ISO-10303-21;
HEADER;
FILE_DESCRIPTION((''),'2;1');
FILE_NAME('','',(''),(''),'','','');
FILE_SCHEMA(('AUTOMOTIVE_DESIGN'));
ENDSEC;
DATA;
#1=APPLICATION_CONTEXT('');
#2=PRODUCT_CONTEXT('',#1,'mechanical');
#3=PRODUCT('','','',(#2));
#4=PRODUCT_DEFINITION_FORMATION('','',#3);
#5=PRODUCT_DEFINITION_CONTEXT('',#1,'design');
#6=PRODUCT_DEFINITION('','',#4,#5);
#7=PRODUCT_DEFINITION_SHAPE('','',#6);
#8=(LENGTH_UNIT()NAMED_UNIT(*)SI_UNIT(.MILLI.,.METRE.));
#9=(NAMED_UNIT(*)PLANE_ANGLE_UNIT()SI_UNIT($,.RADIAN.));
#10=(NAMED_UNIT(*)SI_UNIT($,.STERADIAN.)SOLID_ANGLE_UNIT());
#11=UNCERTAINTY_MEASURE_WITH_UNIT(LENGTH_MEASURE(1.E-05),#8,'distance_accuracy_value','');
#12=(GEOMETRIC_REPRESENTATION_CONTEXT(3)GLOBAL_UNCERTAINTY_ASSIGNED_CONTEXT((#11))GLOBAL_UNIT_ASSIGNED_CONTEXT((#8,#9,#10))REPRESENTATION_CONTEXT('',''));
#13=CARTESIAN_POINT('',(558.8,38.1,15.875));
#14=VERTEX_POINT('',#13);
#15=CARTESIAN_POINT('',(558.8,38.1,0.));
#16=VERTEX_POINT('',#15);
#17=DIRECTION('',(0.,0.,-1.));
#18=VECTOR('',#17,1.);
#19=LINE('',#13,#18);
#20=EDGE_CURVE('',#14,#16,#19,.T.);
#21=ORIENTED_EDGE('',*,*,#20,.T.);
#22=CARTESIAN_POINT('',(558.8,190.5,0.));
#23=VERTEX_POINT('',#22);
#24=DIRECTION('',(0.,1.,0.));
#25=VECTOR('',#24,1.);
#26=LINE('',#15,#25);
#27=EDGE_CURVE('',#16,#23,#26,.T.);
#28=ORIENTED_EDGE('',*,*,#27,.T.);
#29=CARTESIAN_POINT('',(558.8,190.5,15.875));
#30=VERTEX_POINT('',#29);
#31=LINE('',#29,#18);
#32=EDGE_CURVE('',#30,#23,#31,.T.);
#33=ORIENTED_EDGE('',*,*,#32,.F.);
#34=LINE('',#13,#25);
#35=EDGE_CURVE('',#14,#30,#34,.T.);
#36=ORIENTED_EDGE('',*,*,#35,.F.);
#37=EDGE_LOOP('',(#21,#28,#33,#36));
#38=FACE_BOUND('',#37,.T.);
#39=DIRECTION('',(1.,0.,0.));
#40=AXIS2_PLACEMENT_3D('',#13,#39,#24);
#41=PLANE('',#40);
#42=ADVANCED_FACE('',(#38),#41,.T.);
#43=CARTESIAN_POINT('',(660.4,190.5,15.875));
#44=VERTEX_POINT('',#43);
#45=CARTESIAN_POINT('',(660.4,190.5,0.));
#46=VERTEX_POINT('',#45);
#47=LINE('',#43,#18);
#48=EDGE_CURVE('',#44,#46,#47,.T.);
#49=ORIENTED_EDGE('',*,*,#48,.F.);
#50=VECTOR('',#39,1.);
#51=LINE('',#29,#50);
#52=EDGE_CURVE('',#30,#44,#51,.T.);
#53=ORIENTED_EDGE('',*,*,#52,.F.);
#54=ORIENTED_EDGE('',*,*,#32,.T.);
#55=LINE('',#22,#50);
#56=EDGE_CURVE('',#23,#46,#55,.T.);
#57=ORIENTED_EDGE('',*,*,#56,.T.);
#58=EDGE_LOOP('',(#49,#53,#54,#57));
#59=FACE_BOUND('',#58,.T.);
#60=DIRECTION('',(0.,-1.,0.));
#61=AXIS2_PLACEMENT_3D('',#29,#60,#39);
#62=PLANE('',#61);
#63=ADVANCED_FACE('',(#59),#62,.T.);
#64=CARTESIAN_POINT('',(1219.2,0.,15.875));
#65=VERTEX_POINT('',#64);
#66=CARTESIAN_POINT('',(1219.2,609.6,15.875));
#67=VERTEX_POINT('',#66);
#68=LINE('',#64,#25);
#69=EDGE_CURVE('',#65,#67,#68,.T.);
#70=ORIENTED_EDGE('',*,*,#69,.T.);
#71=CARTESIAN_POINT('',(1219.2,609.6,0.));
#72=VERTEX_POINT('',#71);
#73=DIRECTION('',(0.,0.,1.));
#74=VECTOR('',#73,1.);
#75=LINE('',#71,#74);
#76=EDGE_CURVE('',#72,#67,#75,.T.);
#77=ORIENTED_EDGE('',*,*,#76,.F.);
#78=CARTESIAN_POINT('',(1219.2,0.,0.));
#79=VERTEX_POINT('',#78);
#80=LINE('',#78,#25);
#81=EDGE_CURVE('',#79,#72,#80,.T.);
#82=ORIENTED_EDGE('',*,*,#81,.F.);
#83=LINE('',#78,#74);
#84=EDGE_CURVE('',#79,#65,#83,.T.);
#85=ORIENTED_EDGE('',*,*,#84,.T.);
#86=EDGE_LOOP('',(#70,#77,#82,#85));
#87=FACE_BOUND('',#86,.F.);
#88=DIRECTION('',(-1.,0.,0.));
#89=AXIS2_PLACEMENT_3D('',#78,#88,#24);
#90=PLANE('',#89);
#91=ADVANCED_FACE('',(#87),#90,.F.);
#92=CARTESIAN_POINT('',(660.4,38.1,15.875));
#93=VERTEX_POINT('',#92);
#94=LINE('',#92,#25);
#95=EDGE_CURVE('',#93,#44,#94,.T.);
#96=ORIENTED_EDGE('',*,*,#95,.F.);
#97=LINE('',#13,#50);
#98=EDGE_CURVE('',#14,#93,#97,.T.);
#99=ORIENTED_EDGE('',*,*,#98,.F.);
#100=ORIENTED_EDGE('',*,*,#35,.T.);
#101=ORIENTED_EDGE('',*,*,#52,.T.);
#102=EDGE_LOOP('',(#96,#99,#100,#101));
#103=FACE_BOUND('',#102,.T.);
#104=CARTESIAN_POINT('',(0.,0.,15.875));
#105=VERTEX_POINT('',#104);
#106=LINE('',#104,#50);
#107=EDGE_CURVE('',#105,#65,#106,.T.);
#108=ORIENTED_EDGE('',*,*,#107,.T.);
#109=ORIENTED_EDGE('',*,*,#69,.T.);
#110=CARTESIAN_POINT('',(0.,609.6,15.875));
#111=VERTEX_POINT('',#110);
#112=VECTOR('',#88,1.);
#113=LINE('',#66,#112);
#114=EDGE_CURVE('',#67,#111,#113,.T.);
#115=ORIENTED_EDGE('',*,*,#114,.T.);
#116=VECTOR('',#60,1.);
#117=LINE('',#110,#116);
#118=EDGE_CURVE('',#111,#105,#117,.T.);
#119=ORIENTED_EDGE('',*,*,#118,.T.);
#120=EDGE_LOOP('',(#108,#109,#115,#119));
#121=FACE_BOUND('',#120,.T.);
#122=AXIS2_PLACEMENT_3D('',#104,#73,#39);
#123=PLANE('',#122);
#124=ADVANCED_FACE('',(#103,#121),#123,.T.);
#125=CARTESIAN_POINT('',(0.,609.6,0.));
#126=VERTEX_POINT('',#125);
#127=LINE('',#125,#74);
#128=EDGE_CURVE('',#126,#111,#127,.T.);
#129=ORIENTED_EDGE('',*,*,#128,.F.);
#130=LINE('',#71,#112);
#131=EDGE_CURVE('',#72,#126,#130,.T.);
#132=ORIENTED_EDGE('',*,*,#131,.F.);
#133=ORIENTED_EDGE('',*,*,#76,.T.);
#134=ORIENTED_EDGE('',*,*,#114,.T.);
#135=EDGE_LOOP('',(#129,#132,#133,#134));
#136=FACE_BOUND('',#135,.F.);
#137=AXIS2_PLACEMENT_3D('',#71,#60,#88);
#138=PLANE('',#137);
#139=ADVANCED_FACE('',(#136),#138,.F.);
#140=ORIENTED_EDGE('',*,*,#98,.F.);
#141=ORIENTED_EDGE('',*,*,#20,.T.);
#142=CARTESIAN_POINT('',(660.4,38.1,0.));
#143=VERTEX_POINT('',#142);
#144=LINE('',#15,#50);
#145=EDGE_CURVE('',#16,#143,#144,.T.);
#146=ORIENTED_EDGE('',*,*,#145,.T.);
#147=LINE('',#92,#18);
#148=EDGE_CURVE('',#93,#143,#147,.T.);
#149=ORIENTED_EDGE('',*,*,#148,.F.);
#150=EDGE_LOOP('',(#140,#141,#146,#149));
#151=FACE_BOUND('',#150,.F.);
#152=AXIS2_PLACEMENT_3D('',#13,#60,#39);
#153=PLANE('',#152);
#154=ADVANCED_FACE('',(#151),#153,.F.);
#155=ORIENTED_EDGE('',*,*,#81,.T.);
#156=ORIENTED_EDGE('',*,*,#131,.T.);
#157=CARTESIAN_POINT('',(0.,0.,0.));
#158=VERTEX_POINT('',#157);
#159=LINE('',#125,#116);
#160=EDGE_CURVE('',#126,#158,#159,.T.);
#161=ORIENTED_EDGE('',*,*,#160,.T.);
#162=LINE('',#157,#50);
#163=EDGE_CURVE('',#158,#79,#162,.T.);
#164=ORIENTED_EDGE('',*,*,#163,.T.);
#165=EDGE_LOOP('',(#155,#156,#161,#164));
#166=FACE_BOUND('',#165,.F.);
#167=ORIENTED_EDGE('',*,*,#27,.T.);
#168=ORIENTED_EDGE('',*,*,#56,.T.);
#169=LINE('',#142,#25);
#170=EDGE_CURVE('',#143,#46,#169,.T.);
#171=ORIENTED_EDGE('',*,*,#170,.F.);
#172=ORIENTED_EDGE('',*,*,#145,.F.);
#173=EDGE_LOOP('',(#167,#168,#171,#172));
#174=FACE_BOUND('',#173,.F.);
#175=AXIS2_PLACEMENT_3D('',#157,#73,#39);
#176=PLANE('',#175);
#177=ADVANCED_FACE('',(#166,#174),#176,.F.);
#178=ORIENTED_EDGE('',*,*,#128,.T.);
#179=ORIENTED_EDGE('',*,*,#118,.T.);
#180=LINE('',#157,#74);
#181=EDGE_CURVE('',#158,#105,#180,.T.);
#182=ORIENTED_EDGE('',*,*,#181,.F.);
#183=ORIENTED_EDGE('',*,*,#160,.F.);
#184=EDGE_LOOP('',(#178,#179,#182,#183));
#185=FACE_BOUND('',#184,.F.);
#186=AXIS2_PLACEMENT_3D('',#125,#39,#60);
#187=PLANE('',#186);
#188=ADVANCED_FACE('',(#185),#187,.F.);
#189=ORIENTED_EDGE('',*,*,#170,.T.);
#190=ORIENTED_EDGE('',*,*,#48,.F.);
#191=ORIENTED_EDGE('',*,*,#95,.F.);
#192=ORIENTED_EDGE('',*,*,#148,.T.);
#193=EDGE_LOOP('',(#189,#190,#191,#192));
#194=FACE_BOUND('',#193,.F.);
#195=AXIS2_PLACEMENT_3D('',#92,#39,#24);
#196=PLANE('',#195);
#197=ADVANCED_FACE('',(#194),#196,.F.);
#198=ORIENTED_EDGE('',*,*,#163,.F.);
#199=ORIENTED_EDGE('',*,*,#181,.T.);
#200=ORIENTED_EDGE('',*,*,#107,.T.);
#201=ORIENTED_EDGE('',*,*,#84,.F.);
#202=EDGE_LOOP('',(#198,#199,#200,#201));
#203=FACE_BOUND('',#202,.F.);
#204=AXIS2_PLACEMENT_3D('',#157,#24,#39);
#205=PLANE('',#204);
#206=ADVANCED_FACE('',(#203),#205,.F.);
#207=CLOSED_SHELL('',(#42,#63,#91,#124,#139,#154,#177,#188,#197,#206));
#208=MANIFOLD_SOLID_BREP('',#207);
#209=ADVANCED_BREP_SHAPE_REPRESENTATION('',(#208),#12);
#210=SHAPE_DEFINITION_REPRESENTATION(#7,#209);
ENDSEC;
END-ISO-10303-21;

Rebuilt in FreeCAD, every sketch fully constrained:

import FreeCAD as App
import Part
import Sketcher
Q = App.Units.Quantity

doc = App.newDocument("Part")
body = doc.addObject("PartDesign::Body", "Body")

# Sketch on XY plane
sketch1 = body.newObject("Sketcher::SketchObject", "Sketch")
sketch1.AttachmentSupport = (doc.getObject("XY_Plane"), [""])
sketch1.MapMode = "FlatFace"
sketch1.addGeometry(Part.LineSegment(App.Vector(0, 609.6, 0), App.Vector(0, 0, 0)), False)
sketch1.addGeometry(Part.LineSegment(App.Vector(0, 0, 0), App.Vector(1219.2, 0, 0)), False)
sketch1.addGeometry(Part.LineSegment(App.Vector(1219.2, 0, 0), App.Vector(1219.2, 609.6, 0)), False)
sketch1.addGeometry(Part.LineSegment(App.Vector(1219.2, 609.6, 0), App.Vector(0, 609.6, 0)), False)
sketch1.addConstraint(Sketcher.Constraint("Coincident", 0, 2, 1, 1))
sketch1.addConstraint(Sketcher.Constraint("Coincident", 1, 2, 2, 1))
sketch1.addConstraint(Sketcher.Constraint("Coincident", 2, 2, 3, 1))
sketch1.addConstraint(Sketcher.Constraint("Coincident", 3, 2, 0, 1))
sketch1.addConstraint(Sketcher.Constraint("Vertical", 0))
sketch1.addConstraint(Sketcher.Constraint("Horizontal", 1))
sketch1.addConstraint(Sketcher.Constraint("Vertical", 2))
sketch1.addConstraint(Sketcher.Constraint("Horizontal", 3))
sketch1.addConstraint(Sketcher.Constraint("Coincident", 0, 2, -1, 1))
sketch1.addConstraint(Sketcher.Constraint("DistanceX", 1, 1, 1, 2, Q("48 in")))
sketch1.addConstraint(Sketcher.Constraint("DistanceY", 0, 2, 0, 1, Q("24 in")))
pad1 = body.newObject("PartDesign::Pad", "Pad")
pad1.Profile = sketch1
pad1.Length = Q("0.625 in")

# Sketch on XY plane
sketch2 = body.newObject("Sketcher::SketchObject", "Sketch001")
sketch2.AttachmentSupport = (doc.getObject("XY_Plane"), [""])
sketch2.MapMode = "FlatFace"
sketch2.AttachmentOffset = App.Placement(App.Vector(0, 0, 0.625 * 25.4), App.Rotation())
sketch2.addGeometry(Part.LineSegment(App.Vector(558.8, 190.5, 0), App.Vector(558.8, 38.1, 0)), False)
sketch2.addGeometry(Part.LineSegment(App.Vector(558.8, 38.1, 0), App.Vector(660.4, 38.1, 0)), False)
sketch2.addGeometry(Part.LineSegment(App.Vector(660.4, 38.1, 0), App.Vector(660.4, 190.5, 0)), False)
sketch2.addGeometry(Part.LineSegment(App.Vector(660.4, 190.5, 0), App.Vector(558.8, 190.5, 0)), False)
sketch2.addConstraint(Sketcher.Constraint("Coincident", 0, 2, 1, 1))
sketch2.addConstraint(Sketcher.Constraint("Coincident", 1, 2, 2, 1))
sketch2.addConstraint(Sketcher.Constraint("Coincident", 2, 2, 3, 1))
sketch2.addConstraint(Sketcher.Constraint("Coincident", 3, 2, 0, 1))
sketch2.addConstraint(Sketcher.Constraint("Vertical", 0))
sketch2.addConstraint(Sketcher.Constraint("Horizontal", 1))
sketch2.addConstraint(Sketcher.Constraint("Vertical", 2))
sketch2.addConstraint(Sketcher.Constraint("Horizontal", 3))
sketch2.addConstraint(Sketcher.Constraint("DistanceY", -1, 1, 0, 2, Q("1.5 in")))
sketch2.addConstraint(Sketcher.Constraint("DistanceX", 1, 1, 1, 2, Q("4 in")))
sketch2.addConstraint(Sketcher.Constraint("DistanceY", 0, 2, 0, 1, Q("6 in")))
sketch2.addConstraint(Sketcher.Constraint("DistanceX", -1, 1, 0, 2, Q("22 in")))
pocket1 = body.newObject("PartDesign::Pocket", "Pocket")
pocket1.Profile = sketch2
pocket1.Length = Q("0.625 in")

doc.recompute()
